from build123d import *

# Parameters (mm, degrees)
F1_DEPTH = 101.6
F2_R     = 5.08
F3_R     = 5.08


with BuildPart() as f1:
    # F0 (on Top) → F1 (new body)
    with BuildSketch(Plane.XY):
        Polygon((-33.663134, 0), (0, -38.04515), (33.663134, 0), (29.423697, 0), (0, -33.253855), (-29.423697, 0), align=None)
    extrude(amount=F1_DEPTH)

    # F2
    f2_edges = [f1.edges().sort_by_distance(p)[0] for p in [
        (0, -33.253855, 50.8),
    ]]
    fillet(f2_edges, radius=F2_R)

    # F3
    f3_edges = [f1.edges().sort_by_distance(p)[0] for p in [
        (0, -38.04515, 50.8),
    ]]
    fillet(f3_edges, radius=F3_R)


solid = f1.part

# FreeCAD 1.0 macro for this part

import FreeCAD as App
import Part
import Sketcher
Q = App.Units.Quantity


def edges_at(feature, points):
    """Names of the edges that pass closest to the given points."""
    edges = feature.Shape.Edges
    near = lambda p: min(range(len(edges)), key=lambda i: edges[i].distToShape(Part.Vertex(*p))[0])
    return sorted({f"Edge{near(p) + 1}" for p in points})

doc = App.newDocument("Part")
body = doc.addObject("PartDesign::Body", "Body")

sketch1 = body.newObject("Sketcher::SketchObject", "Sketch")
sketch1.AttachmentSupport = (doc.getObject("XY_Plane"), [""])
sketch1.MapMode = "FlatFace"
sketch1.addGeometry(Part.LineSegment(App.Vector(-33.7, 0, 0), App.Vector(0, -38, 0)), False)
sketch1.addGeometry(Part.LineSegment(App.Vector(0, -38, 0), App.Vector(33.7, 0, 0)), False)
sketch1.addGeometry(Part.LineSegment(App.Vector(33.7, 0, 0), App.Vector(29.4, 0, 0)), False)
sketch1.addGeometry(Part.LineSegment(App.Vector(29.4, 0, 0), App.Vector(0, -33.3, 0)), False)
sketch1.addGeometry(Part.LineSegment(App.Vector(0, -33.3, 0), App.Vector(-29.4, 0, 0)), False)
sketch1.addGeometry(Part.LineSegment(App.Vector(-29.4, 0, 0), App.Vector(-33.7, 0, 0)), False)
sketch1.addConstraint(Sketcher.Constraint("Coincident", 0, 2, 1, 1))
sketch1.addConstraint(Sketcher.Constraint("Coincident", 1, 2, 2, 1))
sketch1.addConstraint(Sketcher.Constraint("Coincident", 2, 2, 3, 1))
sketch1.addConstraint(Sketcher.Constraint("Coincident", 3, 2, 4, 1))
sketch1.addConstraint(Sketcher.Constraint("Coincident", 4, 2, 5, 1))
sketch1.addConstraint(Sketcher.Constraint("Coincident", 5, 2, 0, 1))
sketch1.addConstraint(Sketcher.Constraint("Horizontal", 2))
sketch1.addConstraint(Sketcher.Constraint("Horizontal", 5))
sketch1.addConstraint(Sketcher.Constraint("Symmetric", 2, 2, 4, 2, -1, 1))
sketch1.addConstraint(Sketcher.Constraint("Symmetric", 1, 2, 5, 2, -2))
sketch1.addConstraint(Sketcher.Constraint("PointOnObject", 0, 2, -2))
sketch1.addConstraint(Sketcher.Constraint("PointOnObject", 3, 2, -2))
sketch1.addConstraint(Sketcher.Constraint("Parallel", 1, 3))
sketch1.addConstraint(Sketcher.Constraint("Distance", 0, Q("2 in")))
sketch1.addConstraint(Sketcher.Constraint("DistanceX", 2, 2, 2, 1, Q("4.239437 mm")))
sketch1.addConstraint(Sketcher.Constraint("DistanceY", 0, 2, -1, 1, Q("38.04515 mm")))
pad1 = body.newObject("PartDesign::Pad", "Pad")
pad1.Profile = sketch1
pad1.Length = Q("4 in")
doc.recompute()

fillet = body.newObject("PartDesign::Fillet", "Fillet")
fillet.Base = (pad1, edges_at(pad1, [(0, -33.254, 50.8)]))
fillet.Radius = Q("0.2 in")
doc.recompute()

fillet2 = body.newObject("PartDesign::Fillet", "Fillet001")
fillet2.Base = (fillet, edges_at(fillet, [(0, -38.045, 50.8)]))
fillet2.Radius = Q("0.2 in")

doc.recompute()
